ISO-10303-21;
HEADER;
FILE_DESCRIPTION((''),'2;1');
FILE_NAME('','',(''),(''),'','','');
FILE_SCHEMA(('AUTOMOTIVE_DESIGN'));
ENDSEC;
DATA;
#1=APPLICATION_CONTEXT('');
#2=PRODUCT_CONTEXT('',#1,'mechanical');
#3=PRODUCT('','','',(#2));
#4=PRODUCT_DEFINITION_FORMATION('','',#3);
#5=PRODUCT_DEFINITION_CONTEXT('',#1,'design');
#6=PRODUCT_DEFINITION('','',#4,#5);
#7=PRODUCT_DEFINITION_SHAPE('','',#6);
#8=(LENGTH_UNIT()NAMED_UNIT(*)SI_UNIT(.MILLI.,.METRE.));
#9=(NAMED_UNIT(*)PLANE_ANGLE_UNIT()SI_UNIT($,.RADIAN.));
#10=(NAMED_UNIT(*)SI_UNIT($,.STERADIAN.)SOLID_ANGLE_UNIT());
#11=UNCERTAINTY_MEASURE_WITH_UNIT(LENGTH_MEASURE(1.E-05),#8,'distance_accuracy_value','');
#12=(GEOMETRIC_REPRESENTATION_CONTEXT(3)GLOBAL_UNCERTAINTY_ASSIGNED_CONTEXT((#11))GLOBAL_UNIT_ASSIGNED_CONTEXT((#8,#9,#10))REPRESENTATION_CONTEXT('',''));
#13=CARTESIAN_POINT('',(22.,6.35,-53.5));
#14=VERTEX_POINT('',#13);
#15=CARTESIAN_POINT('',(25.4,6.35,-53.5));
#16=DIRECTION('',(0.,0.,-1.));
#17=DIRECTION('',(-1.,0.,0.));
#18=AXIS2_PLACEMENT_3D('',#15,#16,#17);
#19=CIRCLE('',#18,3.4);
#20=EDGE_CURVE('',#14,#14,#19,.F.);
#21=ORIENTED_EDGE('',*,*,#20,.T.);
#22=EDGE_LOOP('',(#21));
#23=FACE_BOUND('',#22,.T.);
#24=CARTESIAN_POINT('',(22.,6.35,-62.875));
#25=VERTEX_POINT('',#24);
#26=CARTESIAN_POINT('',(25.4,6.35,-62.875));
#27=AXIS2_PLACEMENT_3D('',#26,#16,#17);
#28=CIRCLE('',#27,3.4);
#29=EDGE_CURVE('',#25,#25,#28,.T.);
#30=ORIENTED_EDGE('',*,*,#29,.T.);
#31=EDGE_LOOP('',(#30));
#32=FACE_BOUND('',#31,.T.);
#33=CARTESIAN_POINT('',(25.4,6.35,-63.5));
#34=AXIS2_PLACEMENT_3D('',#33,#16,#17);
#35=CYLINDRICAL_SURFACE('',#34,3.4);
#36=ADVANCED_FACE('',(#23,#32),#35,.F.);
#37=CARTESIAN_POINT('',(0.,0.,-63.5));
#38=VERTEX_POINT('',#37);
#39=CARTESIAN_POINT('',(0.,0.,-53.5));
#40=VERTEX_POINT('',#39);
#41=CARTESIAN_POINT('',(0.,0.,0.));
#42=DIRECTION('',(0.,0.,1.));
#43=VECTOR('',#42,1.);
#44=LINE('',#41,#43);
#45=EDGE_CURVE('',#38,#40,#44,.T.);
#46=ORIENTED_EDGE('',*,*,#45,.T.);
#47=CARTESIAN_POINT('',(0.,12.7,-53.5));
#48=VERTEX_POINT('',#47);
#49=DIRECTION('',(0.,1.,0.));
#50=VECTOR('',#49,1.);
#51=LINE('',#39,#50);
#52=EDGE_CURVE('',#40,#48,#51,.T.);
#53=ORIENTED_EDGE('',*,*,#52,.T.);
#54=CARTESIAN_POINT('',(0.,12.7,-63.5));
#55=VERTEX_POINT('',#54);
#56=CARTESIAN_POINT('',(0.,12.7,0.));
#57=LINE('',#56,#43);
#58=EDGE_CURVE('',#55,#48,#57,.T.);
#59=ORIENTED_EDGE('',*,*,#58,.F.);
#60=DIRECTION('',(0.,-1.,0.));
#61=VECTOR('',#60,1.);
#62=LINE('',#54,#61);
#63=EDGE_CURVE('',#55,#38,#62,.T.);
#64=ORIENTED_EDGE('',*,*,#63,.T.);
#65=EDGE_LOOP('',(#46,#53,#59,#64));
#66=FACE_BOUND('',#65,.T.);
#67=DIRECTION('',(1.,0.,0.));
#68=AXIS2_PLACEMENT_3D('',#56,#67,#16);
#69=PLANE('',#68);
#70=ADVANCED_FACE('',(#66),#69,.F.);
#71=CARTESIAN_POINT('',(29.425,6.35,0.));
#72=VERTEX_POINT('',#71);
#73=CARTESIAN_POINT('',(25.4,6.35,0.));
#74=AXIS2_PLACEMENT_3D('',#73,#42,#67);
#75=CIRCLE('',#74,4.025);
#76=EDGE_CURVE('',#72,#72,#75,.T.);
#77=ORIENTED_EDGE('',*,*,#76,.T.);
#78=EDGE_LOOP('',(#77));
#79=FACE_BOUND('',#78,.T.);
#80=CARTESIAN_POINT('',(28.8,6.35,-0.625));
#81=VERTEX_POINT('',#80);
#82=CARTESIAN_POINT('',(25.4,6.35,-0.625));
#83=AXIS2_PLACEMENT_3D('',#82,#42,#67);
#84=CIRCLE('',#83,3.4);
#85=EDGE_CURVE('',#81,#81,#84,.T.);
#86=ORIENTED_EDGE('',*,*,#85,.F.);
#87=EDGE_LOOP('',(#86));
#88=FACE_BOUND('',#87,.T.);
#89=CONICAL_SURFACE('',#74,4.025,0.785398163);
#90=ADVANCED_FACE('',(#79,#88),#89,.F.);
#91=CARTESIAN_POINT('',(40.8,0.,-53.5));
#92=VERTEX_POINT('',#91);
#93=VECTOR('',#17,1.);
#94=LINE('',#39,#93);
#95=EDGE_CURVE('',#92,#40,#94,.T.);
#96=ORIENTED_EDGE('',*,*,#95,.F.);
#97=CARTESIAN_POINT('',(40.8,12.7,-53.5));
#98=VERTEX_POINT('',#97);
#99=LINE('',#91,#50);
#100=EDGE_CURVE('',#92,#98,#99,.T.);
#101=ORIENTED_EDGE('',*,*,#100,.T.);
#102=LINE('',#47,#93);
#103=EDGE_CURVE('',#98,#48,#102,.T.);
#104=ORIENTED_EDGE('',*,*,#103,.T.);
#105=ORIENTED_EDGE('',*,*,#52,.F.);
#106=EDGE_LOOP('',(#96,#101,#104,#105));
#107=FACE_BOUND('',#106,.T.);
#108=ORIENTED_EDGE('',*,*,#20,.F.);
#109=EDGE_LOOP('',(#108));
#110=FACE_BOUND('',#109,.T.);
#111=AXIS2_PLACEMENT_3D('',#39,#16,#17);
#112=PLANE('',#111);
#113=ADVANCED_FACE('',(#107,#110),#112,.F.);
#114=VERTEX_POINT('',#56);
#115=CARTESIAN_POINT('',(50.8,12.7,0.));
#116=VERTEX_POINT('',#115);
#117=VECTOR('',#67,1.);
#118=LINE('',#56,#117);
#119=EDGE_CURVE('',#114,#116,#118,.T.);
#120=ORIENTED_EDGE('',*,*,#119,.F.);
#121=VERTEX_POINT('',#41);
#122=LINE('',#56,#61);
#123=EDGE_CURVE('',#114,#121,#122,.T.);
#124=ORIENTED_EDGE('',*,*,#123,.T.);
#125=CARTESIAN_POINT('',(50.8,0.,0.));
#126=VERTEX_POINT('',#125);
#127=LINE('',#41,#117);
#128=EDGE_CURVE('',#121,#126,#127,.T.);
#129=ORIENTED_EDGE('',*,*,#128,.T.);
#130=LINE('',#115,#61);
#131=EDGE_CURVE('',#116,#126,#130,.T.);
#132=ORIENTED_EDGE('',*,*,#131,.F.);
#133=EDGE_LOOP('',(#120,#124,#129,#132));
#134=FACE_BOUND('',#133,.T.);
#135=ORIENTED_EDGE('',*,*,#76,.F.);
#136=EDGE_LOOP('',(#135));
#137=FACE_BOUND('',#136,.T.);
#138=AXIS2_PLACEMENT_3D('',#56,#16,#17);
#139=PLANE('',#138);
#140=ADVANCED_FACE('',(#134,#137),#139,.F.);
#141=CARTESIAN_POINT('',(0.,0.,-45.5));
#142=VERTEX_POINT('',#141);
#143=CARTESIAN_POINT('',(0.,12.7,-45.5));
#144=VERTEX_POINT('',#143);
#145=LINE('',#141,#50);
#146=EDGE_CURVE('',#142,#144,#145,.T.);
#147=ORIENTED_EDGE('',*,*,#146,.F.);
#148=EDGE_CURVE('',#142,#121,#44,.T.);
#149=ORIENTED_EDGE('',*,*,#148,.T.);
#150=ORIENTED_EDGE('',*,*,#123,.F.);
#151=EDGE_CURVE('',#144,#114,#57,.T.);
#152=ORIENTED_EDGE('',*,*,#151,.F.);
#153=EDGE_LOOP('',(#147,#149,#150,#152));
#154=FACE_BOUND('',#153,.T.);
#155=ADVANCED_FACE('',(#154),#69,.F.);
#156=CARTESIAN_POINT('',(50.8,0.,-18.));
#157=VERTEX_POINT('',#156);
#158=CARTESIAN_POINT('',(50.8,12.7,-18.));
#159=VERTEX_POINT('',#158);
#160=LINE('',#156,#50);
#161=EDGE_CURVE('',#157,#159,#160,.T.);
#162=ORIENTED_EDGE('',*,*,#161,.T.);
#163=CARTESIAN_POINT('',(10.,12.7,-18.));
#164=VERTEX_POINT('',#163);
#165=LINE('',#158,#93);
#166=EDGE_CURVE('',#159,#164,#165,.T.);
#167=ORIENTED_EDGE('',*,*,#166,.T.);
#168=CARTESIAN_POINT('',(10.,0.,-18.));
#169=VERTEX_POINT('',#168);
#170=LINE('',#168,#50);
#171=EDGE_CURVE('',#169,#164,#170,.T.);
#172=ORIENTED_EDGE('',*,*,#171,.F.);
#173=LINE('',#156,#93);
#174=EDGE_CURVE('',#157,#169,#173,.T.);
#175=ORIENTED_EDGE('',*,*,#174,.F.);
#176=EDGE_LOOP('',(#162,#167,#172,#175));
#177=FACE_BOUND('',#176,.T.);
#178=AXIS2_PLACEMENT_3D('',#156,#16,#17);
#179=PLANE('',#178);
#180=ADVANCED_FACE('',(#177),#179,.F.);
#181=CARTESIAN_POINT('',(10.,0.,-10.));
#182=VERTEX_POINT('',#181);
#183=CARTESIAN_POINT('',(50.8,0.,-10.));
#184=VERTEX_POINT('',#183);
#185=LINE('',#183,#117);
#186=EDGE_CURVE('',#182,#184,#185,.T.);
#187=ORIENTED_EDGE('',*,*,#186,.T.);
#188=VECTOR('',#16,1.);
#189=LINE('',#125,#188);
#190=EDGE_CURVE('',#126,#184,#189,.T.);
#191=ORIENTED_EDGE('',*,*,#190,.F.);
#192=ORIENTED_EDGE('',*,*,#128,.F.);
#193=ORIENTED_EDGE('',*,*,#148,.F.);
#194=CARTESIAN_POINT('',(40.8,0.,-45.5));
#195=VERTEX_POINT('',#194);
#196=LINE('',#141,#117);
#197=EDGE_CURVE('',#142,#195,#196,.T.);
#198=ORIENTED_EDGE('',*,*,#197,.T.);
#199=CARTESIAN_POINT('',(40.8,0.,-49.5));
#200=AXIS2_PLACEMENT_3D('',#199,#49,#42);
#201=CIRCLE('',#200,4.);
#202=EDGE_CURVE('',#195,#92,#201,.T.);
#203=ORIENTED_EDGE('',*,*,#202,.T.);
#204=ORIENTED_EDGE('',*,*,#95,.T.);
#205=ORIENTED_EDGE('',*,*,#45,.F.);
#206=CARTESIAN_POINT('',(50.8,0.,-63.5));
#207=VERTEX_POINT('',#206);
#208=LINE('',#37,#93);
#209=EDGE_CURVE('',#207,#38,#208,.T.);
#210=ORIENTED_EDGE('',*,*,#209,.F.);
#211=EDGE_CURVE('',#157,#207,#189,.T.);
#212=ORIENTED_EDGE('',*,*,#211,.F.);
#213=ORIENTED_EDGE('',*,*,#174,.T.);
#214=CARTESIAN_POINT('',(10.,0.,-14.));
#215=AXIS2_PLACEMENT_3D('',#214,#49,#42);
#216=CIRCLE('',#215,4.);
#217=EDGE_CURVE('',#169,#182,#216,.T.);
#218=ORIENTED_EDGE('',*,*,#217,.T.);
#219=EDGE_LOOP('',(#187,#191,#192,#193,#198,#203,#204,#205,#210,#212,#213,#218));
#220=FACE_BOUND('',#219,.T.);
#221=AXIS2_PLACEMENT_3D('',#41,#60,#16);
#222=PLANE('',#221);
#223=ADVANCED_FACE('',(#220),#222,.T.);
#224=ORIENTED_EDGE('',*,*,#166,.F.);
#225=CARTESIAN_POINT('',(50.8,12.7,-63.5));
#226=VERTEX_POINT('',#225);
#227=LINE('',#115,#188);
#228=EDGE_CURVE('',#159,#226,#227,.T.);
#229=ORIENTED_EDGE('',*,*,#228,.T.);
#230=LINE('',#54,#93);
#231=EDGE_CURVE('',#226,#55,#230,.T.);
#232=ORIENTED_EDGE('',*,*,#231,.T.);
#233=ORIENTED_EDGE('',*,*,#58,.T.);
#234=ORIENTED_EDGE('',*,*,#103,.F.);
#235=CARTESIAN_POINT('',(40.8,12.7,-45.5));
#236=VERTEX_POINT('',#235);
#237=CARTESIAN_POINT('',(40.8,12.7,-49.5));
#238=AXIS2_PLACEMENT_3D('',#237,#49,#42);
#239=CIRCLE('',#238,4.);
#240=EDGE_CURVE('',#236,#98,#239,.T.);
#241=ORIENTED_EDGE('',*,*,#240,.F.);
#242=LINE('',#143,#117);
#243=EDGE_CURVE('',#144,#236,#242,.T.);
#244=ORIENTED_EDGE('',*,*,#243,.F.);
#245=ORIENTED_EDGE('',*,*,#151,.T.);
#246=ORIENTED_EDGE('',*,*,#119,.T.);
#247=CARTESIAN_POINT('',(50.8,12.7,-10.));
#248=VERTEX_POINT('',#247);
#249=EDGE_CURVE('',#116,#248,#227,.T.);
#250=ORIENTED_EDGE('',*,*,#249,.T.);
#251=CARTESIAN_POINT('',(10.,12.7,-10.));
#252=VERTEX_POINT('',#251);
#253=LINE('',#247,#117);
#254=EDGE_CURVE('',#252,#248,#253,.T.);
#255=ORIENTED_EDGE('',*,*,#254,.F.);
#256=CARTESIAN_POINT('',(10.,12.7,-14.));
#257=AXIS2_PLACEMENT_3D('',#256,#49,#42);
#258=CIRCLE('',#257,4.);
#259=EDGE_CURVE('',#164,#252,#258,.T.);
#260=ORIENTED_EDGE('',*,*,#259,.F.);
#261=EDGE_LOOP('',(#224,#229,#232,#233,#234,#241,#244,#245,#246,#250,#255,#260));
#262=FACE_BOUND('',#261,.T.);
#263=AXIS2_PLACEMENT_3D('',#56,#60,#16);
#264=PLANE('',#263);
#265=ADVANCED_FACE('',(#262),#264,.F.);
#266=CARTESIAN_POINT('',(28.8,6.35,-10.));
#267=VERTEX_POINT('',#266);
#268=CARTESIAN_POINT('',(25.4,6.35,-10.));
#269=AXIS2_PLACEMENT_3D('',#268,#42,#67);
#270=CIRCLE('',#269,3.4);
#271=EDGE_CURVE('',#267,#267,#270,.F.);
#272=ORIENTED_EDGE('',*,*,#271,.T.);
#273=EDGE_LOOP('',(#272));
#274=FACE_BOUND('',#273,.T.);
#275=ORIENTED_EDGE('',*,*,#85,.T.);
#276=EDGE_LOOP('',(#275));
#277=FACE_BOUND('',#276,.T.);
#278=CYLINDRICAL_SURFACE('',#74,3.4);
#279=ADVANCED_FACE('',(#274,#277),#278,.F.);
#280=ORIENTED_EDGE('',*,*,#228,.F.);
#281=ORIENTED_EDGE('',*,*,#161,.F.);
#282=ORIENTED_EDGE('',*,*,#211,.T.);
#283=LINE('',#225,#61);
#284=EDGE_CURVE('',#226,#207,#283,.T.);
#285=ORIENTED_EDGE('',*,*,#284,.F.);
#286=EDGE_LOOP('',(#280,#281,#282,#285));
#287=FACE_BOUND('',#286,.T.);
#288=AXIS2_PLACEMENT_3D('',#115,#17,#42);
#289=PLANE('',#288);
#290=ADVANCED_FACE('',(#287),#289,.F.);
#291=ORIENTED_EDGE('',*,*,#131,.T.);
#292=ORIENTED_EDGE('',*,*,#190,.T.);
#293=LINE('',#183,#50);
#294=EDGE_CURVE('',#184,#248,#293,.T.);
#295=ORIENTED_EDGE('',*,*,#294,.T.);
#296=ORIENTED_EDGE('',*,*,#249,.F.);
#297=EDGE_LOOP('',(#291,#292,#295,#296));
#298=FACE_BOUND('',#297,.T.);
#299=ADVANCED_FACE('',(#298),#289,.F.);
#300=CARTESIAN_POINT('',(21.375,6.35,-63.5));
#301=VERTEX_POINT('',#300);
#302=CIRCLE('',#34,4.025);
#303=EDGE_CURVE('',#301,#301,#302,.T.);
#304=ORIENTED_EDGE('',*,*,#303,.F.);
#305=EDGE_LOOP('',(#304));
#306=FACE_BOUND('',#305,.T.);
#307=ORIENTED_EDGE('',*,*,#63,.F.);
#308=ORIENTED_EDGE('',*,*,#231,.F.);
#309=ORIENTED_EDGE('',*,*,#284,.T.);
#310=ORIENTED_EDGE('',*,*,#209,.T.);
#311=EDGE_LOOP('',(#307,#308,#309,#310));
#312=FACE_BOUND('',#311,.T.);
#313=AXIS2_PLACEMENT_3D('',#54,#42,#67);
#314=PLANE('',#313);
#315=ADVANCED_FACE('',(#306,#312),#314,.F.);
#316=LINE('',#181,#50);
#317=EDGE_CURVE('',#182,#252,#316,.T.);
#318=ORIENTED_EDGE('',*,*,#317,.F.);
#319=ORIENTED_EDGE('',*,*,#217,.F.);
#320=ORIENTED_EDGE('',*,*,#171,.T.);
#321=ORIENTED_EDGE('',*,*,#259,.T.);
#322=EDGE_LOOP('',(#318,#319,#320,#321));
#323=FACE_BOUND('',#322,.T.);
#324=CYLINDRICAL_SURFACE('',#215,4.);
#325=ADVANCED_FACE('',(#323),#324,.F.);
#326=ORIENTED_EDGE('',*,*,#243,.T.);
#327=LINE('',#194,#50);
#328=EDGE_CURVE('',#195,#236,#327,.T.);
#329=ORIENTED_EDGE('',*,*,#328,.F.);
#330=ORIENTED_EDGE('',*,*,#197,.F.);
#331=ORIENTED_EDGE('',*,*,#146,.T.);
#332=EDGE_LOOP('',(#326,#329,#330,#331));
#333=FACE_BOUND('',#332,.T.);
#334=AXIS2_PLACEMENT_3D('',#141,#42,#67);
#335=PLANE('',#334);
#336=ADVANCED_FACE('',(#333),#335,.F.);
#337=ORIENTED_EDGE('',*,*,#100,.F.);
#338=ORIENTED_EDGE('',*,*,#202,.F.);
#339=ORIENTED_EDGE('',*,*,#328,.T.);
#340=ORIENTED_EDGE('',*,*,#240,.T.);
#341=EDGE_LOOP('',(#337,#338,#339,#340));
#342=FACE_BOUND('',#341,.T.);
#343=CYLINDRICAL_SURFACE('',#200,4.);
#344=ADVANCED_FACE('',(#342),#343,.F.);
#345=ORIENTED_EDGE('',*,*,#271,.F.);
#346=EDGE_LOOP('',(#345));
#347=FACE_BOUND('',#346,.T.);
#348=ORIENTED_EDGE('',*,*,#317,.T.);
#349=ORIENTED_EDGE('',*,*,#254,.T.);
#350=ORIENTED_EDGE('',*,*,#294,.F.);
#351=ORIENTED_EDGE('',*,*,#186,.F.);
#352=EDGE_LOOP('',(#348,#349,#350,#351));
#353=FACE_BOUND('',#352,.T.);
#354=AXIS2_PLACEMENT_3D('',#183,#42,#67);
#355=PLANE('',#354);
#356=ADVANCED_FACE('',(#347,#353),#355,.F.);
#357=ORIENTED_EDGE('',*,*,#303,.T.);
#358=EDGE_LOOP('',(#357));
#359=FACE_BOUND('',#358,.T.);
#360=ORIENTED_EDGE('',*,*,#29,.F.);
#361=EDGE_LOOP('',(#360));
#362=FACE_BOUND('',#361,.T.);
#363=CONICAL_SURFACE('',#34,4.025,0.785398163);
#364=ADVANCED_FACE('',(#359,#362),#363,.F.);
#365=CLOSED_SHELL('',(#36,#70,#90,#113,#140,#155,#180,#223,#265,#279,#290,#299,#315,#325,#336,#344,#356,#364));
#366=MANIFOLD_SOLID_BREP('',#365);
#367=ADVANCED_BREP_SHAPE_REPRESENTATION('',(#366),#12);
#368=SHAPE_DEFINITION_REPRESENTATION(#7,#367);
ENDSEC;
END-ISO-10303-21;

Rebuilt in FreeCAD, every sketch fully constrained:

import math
import FreeCAD as App
import Part
import Sketcher
from FreeCAD import Vector

doc = App.newDocument("Part")
body = doc.addObject("PartDesign::Body", "Body")

# Sketch on XZ plane
sketch1 = body.newObject("Sketcher::SketchObject", "Sketch")
sketch1.AttachmentSupport = (doc.getObject("XZ_Plane"), [""])
sketch1.MapMode = "FlatFace"
sketch1.addGeometry(Part.LineSegment(Vector(0, -64, 0), Vector(0, 0, 0)), False)
sketch1.addGeometry(Part.LineSegment(Vector(0, 0, 0), Vector(51, 0, 0)), False)
sketch1.addGeometry(Part.LineSegment(Vector(51, 0, 0), Vector(51, -64, 0)), False)
sketch1.addGeometry(Part.LineSegment(Vector(51, -64, 0), Vector(0, -64, 0)), False)
sketch1.addConstraint(Sketcher.Constraint("Coincident", 0, 2, 1, 1))
sketch1.addConstraint(Sketcher.Constraint("Coincident", 1, 2, 2, 1))
sketch1.addConstraint(Sketcher.Constraint("Coincident", 2, 2, 3, 1))
sketch1.addConstraint(Sketcher.Constraint("Coincident", 3, 2, 0, 1))
sketch1.addConstraint(Sketcher.Constraint("Vertical", 0))
sketch1.addConstraint(Sketcher.Constraint("Horizontal", 1))
sketch1.addConstraint(Sketcher.Constraint("Vertical", 2))
sketch1.addConstraint(Sketcher.Constraint("Horizontal", 3))
sketch1.addConstraint(Sketcher.Constraint("Coincident", 0, 2, -1, 1))
sketch1.addConstraint(Sketcher.Constraint("DistanceX", 1, 1, 1, 2, 50.8))
sketch1.addConstraint(Sketcher.Constraint("DistanceY", 0, 1, 0, 2, 63.5))
pad1 = body.newObject("PartDesign::Pad", "Pad")
pad1.Profile = sketch1
pad1.Length = 12.7
pad1.Reversed = True

# Sketch on XY plane
sketch2 = body.newObject("Sketcher::SketchObject", "Sketch001")
sketch2.AttachmentSupport = (doc.getObject("XY_Plane"), [""])
sketch2.MapMode = "FlatFace"
sketch2.AttachmentOffset = App.Placement(Vector(0, 0, -63.5), App.Rotation())
sketch2.addGeometry(Part.Circle(Vector(25.4, 6.3, 0), Vector(0, 0, 1), 3.4), False)
sketch2.addConstraint(Sketcher.Constraint("Diameter", 0, 6.8))
sketch2.addConstraint(Sketcher.Constraint("DistanceX", -1, 1, 0, 3, 25.4))
sketch2.addConstraint(Sketcher.Constraint("DistanceY", -1, 1, 0, 3, 6.35))
doc.recompute()
hole = body.newObject("PartDesign::Hole", "Hole")
hole.Profile = sketch2
hole.ThreadType = "None"
hole.Diameter = 6.8
hole.DepthType = "Dimension"
hole.Depth = 15
hole.DrillPoint = "Angled"
hole.DrillPointAngle = 118
hole.HoleCutType = "Countersink"
hole.HoleCutDiameter = 8.05
hole.HoleCutCountersinkAngle = 90
hole.Reversed = True

# Sketch on XY plane
sketch3 = body.newObject("Sketcher::SketchObject", "Sketch002")
sketch3.AttachmentSupport = (doc.getObject("XY_Plane"), [""])
sketch3.MapMode = "FlatFace"
sketch3.addGeometry(Part.Circle(Vector(25.4, 6.3, 0), Vector(0, 0, 1), 3.4), False)
sketch3.addConstraint(Sketcher.Constraint("Diameter", 0, 6.8))
sketch3.addConstraint(Sketcher.Constraint("DistanceX", -1, 1, 0, 3, 25.4))
sketch3.addConstraint(Sketcher.Constraint("DistanceY", -1, 1, 0, 3, 6.35))
doc.recompute()
hole2 = body.newObject("PartDesign::Hole", "Hole001")
hole2.Profile = sketch3
hole2.ThreadType = "None"
hole2.Diameter = 6.8
hole2.DepthType = "Dimension"
hole2.Depth = 15
hole2.DrillPoint = "Angled"
hole2.DrillPointAngle = 118
hole2.HoleCutType = "Countersink"
hole2.HoleCutDiameter = 8.05
hole2.HoleCutCountersinkAngle = 90

# Sketch on XZ plane
sketch4 = body.newObject("Sketcher::SketchObject", "Sketch003")
sketch4.AttachmentSupport = (doc.getObject("XZ_Plane"), [""])
sketch4.MapMode = "FlatFace"
sketch4.AttachmentOffset = App.Placement(Vector(0, 0, -12.7), App.Rotation())
sketch4.addGeometry(Part.LineSegment(Vector(40.8, -53.5, 0), Vector(0, -53.5, 0)), False)
sketch4.addGeometry(Part.LineSegment(Vector(0, -53.5, 0), Vector(0, -45.5, 0)), False)
sketch4.addGeometry(Part.LineSegment(Vector(0, -45.5, 0), Vector(40.8, -45.5, 0)), False)
sketch4.addGeometry(Part.ArcOfCircle(Part.Circle(Vector(40.8, -49.5, 0), Vector(0, 0, 1), 4), math.radians(-90), math.radians(90)), False)
sketch4.addGeometry(Part.LineSegment(Vector(50.8, -18, 0), Vector(10, -18, 0)), False)
sketch4.addGeometry(Part.ArcOfCircle(Part.Circle(Vector(10, -14, 0), Vector(0, 0, 1), 4), math.radians(90), math.radians(270)), False)
sketch4.addGeometry(Part.LineSegment(Vector(10, -10, 0), Vector(50.8, -10, 0)), False)
sketch4.addGeometry(Part.LineSegment(Vector(50.8, -10, 0), Vector(50.8, -18, 0)), False)
sketch4.addConstraint(Sketcher.Constraint("Coincident", 0, 2, 1, 1))
sketch4.addConstraint(Sketcher.Constraint("Coincident", 1, 2, 2, 1))
sketch4.addConstraint(Sketcher.Constraint("Tangent", 2, 2, 3, 2))
sketch4.addConstraint(Sketcher.Constraint("Tangent", 3, 1, 0, 1))
sketch4.addConstraint(Sketcher.Constraint("Tangent", 4, 2, 5, 2))
sketch4.addConstraint(Sketcher.Constraint("Tangent", 5, 1, 6, 1))
sketch4.addConstraint(Sketcher.Constraint("Coincident", 6, 2, 7, 1))
sketch4.addConstraint(Sketcher.Constraint("Coincident", 7, 2, 4, 1))
sketch4.addConstraint(Sketcher.Constraint("Horizontal", 0))
sketch4.addConstraint(Sketcher.Constraint("Vertical", 1))
sketch4.addConstraint(Sketcher.Constraint("Horizontal", 2))
sketch4.addConstraint(Sketcher.Constraint("Horizontal", 4))
sketch4.addConstraint(Sketcher.Constraint("Horizontal", 6))
sketch4.addConstraint(Sketcher.Constraint("Vertical", 7))
sketch4.addConstraint(Sketcher.Constraint("Equal", 3, 5))
sketch4.addConstraint(Sketcher.Constraint("PointOnObject", 0, 2, -2))
sketch4.addConstraint(Sketcher.Constraint("Equal", 2, 4))
sketch4.addConstraint(Sketcher.Constraint("Radius", 3, 4.0))
sketch4.addConstraint(Sketcher.Constraint("DistanceX", 0, 2, 0, 1, 40.8))
sketch4.addConstraint(Sketcher.Constraint("DistanceX", -1, 1, 5, 3, 10.0))
sketch4.addConstraint(Sketcher.Constraint("DistanceY", 5, 3, -1, 1, 14.0))
sketch4.addConstraint(Sketcher.Constraint("DistanceY", 3, 3, -1, 1, 49.5))
pocket1 = body.newObject("PartDesign::Pocket", "Pocket")
pocket1.Profile = sketch4
pocket1.Type = "ThroughAll"
pocket1.Reversed = True

doc.recompute()
